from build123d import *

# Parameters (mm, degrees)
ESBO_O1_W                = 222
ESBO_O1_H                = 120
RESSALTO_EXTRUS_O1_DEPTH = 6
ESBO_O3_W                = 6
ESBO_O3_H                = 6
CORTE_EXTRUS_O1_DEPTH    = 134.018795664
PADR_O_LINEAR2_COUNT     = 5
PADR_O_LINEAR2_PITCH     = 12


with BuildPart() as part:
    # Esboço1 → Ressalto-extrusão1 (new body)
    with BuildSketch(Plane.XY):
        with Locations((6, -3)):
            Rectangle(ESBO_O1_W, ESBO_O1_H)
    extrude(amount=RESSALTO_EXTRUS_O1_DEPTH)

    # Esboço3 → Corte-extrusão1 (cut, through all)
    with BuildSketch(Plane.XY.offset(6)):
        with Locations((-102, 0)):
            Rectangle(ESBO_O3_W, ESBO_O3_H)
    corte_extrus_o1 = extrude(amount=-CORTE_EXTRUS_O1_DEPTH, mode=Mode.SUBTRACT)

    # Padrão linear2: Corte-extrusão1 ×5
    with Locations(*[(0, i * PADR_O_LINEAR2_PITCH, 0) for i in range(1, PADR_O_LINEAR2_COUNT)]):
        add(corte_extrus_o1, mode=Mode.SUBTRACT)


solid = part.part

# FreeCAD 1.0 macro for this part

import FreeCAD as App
import Part
import Sketcher
from FreeCAD import Vector
Q = App.Units.Quantity


def add_polygon(sketch, points):
    """Adds a closed chain of lines whose ends are joined by coincident constraints."""
    first, n = sketch.GeometryCount, len(points)
    for a, b in zip(points, points[1:] + points[:1]):
        sketch.addGeometry(Part.LineSegment(App.Vector(*a, 0), App.Vector(*b, 0)), False)
    for i in range(n):
        sketch.addConstraint(Sketcher.Constraint("Coincident", first + i, 2, first + (i + 1) % n, 1))

doc = App.newDocument("Part")
body = doc.addObject("PartDesign::Body", "Body")

sketch1 = doc.addObject("Sketcher::SketchObject", "Sketch")
body.addObject(sketch1)
sketch1.AttachmentSupport = (doc.XY_Plane, [""])
sketch1.MapMode = "FlatFace"
add_polygon(sketch1, [(-105, 57), (-105, -63), (117, -63), (117, 57)])
sketch1.addConstraint([
    Sketcher.Constraint("Vertical", 0),
    Sketcher.Constraint("Horizontal", 1),
    Sketcher.Constraint("Vertical", 2),
    Sketcher.Constraint("Horizontal", 3),
    Sketcher.Constraint("DistanceX", 1, 1, 1, 2, Q("222 mm")),
    Sketcher.Constraint("DistanceY", 0, 2, 0, 1, Q("120 mm")),
    Sketcher.Constraint("DistanceX", 0, 2, -1, 1, Q("105 mm")),
    Sketcher.Constraint("DistanceY", 0, 2, -1, 1, Q("63 mm")),
])
pad1 = doc.addObject("PartDesign::Pad", "Pad")
body.addObject(pad1)
pad1.Profile = sketch1
pad1.Length = 6

sketch2 = doc.addObject("Sketcher::SketchObject", "Sketch001")
body.addObject(sketch2)
sketch2.AttachmentSupport = (doc.XY_Plane, [""])
sketch2.MapMode = "FlatFace"
sketch2.AttachmentOffset = App.Placement(Vector(0, 0, 6), App.Rotation())
add_polygon(sketch2, [(-105, 3), (-105, -3), (-99, -3), (-99, 3)])
sketch2.addConstraint([
    Sketcher.Constraint("Vertical", 0),
    Sketcher.Constraint("Horizontal", 1),
    Sketcher.Constraint("Vertical", 2),
    Sketcher.Constraint("Horizontal", 3),
    Sketcher.Constraint("Equal", 3, 0),
    Sketcher.Constraint("DistanceX", 1, 1, 1, 2, Q("6 mm")),
    Sketcher.Constraint("DistanceX", 0, 2, -1, 1, Q("105 mm")),
    Sketcher.Constraint("DistanceY", 0, 2, -1, 1, Q("3 mm")),
])
pocket1 = doc.addObject("PartDesign::Pocket", "Pocket")
body.addObject(pocket1)
pocket1.Profile = sketch2
pocket1.Type = "ThroughAll"
doc.recompute()

linearpattern = doc.addObject("PartDesign::LinearPattern", "LinearPattern")
body.addObject(linearpattern)
linearpattern.Originals = [pocket1]
linearpattern.Direction = (doc.Y_Axis, [""])
linearpattern.Mode = "offset"
linearpattern.Offset = 12
linearpattern.Occurrences = 5
body.Tip = linearpattern

doc.recompute()
